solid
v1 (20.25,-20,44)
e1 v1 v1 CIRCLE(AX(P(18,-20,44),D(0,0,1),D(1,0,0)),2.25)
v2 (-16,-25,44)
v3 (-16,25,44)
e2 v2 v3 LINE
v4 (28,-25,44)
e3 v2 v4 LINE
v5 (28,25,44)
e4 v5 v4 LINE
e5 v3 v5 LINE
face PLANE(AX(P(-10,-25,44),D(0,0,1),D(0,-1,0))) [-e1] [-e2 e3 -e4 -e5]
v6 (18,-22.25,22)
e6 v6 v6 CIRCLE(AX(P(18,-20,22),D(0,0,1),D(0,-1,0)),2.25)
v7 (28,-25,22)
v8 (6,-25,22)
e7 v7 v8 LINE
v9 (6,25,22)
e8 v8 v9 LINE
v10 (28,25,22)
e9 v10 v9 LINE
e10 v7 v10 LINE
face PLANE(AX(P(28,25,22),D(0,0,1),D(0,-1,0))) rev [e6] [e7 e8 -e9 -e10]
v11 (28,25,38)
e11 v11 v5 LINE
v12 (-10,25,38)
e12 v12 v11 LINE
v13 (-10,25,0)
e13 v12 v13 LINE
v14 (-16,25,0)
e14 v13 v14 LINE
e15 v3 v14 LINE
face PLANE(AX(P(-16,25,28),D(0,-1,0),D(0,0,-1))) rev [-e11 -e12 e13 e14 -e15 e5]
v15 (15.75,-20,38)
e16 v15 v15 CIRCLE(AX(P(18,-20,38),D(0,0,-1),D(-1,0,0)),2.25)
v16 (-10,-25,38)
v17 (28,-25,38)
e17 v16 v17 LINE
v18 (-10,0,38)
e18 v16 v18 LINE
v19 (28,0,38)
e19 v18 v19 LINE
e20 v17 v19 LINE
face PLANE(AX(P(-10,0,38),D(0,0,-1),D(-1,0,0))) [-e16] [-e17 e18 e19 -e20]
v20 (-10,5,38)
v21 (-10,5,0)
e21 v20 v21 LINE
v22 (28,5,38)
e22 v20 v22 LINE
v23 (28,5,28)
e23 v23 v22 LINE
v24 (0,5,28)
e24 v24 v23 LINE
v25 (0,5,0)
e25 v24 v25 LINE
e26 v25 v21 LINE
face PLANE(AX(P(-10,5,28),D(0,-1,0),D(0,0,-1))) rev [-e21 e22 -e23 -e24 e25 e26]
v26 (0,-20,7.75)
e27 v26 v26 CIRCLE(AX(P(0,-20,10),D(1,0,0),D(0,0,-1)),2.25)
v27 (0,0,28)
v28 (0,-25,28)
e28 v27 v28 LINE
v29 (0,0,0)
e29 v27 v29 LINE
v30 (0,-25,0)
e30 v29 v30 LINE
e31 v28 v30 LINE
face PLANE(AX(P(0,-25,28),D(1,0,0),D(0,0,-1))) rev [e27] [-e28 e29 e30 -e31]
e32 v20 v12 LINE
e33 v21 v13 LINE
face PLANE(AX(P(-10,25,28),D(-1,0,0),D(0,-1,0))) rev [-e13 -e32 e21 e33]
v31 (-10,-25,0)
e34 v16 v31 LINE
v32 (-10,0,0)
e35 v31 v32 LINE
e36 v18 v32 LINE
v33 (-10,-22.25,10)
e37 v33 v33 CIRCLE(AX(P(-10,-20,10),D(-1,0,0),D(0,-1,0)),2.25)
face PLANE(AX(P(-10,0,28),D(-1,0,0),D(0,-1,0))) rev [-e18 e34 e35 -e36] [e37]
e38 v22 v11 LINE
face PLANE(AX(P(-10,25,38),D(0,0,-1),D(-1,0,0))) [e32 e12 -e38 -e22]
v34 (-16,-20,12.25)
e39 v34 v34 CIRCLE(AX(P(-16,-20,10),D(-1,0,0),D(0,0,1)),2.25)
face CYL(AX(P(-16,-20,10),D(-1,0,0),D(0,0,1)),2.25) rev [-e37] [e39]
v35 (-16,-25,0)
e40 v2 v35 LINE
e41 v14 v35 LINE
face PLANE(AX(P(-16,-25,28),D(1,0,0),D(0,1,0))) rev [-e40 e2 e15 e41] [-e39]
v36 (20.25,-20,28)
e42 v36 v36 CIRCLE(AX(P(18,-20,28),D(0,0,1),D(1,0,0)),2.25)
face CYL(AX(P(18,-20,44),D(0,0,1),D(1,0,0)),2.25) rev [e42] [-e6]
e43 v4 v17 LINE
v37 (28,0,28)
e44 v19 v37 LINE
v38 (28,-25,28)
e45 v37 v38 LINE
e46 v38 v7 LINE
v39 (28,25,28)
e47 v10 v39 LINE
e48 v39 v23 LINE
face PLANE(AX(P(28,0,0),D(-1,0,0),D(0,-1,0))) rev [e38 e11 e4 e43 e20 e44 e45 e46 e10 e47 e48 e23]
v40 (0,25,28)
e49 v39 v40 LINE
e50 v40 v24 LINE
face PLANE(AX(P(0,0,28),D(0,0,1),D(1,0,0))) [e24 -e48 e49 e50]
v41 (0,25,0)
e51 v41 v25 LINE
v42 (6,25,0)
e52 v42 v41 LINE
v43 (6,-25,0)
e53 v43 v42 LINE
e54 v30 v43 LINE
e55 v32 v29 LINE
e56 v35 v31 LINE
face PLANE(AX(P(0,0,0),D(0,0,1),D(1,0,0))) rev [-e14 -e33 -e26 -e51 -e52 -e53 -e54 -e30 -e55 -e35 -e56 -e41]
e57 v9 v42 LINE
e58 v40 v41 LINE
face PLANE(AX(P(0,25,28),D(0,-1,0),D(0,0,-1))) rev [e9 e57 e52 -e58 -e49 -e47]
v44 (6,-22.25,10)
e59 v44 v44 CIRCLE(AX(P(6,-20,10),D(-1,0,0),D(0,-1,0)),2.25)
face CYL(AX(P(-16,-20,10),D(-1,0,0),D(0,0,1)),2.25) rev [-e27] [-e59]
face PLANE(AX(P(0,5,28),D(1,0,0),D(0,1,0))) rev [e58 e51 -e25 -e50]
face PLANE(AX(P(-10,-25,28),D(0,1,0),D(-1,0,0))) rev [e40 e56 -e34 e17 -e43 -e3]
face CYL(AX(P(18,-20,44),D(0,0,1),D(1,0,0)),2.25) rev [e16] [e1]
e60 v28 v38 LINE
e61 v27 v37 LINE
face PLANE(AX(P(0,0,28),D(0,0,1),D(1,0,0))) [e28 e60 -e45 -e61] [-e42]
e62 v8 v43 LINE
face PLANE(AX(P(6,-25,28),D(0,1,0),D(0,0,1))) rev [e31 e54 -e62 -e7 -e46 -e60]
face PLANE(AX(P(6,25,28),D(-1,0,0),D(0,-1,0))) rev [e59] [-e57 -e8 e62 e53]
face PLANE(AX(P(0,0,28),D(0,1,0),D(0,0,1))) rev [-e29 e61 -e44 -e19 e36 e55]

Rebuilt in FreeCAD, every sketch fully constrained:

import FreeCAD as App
import Part
import Sketcher

V = App.Vector
Q = App.Units.Quantity

doc = App.newDocument("Part")
params = doc.addObject("Spreadsheet::Sheet", "Params")
for row, (alias, value) in enumerate([
    ("sketch1_width", "10 mm"),
    ("sketch1_width2", "6 mm"),
    ("sketch1_height", "25 mm"),
    ("sketch1_height2", "20 mm"),
    ("pad1_length", "28 mm"),
    ("sketch2_width", "5 mm"),
    ("sketch2_width2", "20 mm"),
    ("sketch2_height", "10 mm"),
    ("sketch2_height2", "6 mm"),
    ("pad2_length", "16 mm"),
    ("sketch3_width", "50 mm"),
    ("sketch3_height", "16 mm"),
    ("pad3_length", "6 mm"),
    ("sketch4_width", "25 mm"),
    ("sketch4_width2", "20 mm"),
    ("sketch4_height", "6 mm"),
    ("sketch4_height2", "10 mm"),
    ("pad4_length", "22 mm"),
    ("sketch5_diameter", "4.5 mm"),
    ("hole_diameter", "4.5 mm"),
    ("hole_depth", "30 mm"),
    ("sketch6_diameter", "4.5 mm"),
    ("hole2_diameter", "4.5 mm"),
    ("hole2_depth", "30 mm"),
], start=1):
    params.set(f"A{row}", alias)
    params.set(f"B{row}", "=" + value)
    params.setAlias(f"B{row}", alias)

body = doc.addObject("PartDesign::Body", "Body")

# Sketch on XY plane
sketch1 = body.newObject("Sketcher::SketchObject", "Sketch")
sketch1.AttachmentSupport = (doc.getObject("XY_Plane"), [""])
sketch1.MapMode = "FlatFace"
sketch1.addGeometry(Part.LineSegment(V(-10, 0, 0), V(0, 0, 0)), False)
sketch1.addGeometry(Part.LineSegment(V(0, 0, 0), V(0, -25, 0)), False)
sketch1.addGeometry(Part.LineSegment(V(0, -25, 0), V(6, -25, 0)), False)
sketch1.addGeometry(Part.LineSegment(V(6, -25, 0), V(6, 25, 0)), False)
sketch1.addGeometry(Part.LineSegment(V(6, 25, 0), V(0, 25, 0)), False)
sketch1.addGeometry(Part.LineSegment(V(0, 25, 0), V(0, 5, 0)), False)
sketch1.addGeometry(Part.LineSegment(V(0, 5, 0), V(-10, 5, 0)), False)
sketch1.addGeometry(Part.LineSegment(V(-10, 5, 0), V(-10, 25, 0)), False)
sketch1.addGeometry(Part.LineSegment(V(-10, 25, 0), V(-16, 25, 0)), False)
sketch1.addGeometry(Part.LineSegment(V(-16, 25, 0), V(-16, -25, 0)), False)
sketch1.addGeometry(Part.LineSegment(V(-16, -25, 0), V(-10, -25, 0)), False)
sketch1.addGeometry(Part.LineSegment(V(-10, -25, 0), V(-10, 0, 0)), False)
sketch1.addConstraint(Sketcher.Constraint("Coincident", 0, 2, 1, 1))
sketch1.addConstraint(Sketcher.Constraint("Coincident", 1, 2, 2, 1))
sketch1.addConstraint(Sketcher.Constraint("Coincident", 2, 2, 3, 1))
sketch1.addConstraint(Sketcher.Constraint("Coincident", 3, 2, 4, 1))
sketch1.addConstraint(Sketcher.Constraint("Coincident", 4, 2, 5, 1))
sketch1.addConstraint(Sketcher.Constraint("Coincident", 5, 2, 6, 1))
sketch1.addConstraint(Sketcher.Constraint("Coincident", 6, 2, 7, 1))
sketch1.addConstraint(Sketcher.Constraint("Coincident", 7, 2, 8, 1))
sketch1.addConstraint(Sketcher.Constraint("Coincident", 8, 2, 9, 1))
sketch1.addConstraint(Sketcher.Constraint("Coincident", 9, 2, 10, 1))
sketch1.addConstraint(Sketcher.Constraint("Coincident", 10, 2, 11, 1))
sketch1.addConstraint(Sketcher.Constraint("Coincident", 11, 2, 0, 1))
sketch1.addConstraint(Sketcher.Constraint("Horizontal", 0))
sketch1.addConstraint(Sketcher.Constraint("Vertical", 1))
sketch1.addConstraint(Sketcher.Constraint("Horizontal", 2))
sketch1.addConstraint(Sketcher.Constraint("Vertical", 3))
sketch1.addConstraint(Sketcher.Constraint("Horizontal", 4))
sketch1.addConstraint(Sketcher.Constraint("Vertical", 5))
sketch1.addConstraint(Sketcher.Constraint("Horizontal", 6))
sketch1.addConstraint(Sketcher.Constraint("Vertical", 7))
sketch1.addConstraint(Sketcher.Constraint("Horizontal", 8))
sketch1.addConstraint(Sketcher.Constraint("Vertical", 9))
sketch1.addConstraint(Sketcher.Constraint("Horizontal", 10))
sketch1.addConstraint(Sketcher.Constraint("Vertical", 11))
sketch1.addConstraint(Sketcher.Constraint("Coincident", 0, 2, -1, 1))
sketch1.addConstraint(Sketcher.Constraint("Symmetric", 1, 2, 4, 2, -1, 1))
sketch1.addConstraint(Sketcher.Constraint("Symmetric", 7, 2, 10, 2, -1))
sketch1.addConstraint(Sketcher.Constraint("Horizontal", 4, 2, 7, 2))
sketch1.addConstraint(Sketcher.Constraint("Equal", 4, 8))
sketch1.addConstraint(Sketcher.Constraint("DistanceX", 0, 1, 0, 2, Q("10 mm")))
sketch1.addConstraint(Sketcher.Constraint("DistanceX", 2, 1, 2, 2, Q("6 mm")))
sketch1.addConstraint(Sketcher.Constraint("DistanceY", 1, 2, 1, 1, Q("25 mm")))
sketch1.addConstraint(Sketcher.Constraint("DistanceY", 5, 2, 5, 1, Q("20 mm")))
sketch1.setExpression("Constraints[29]", "Params.sketch1_width")
sketch1.setExpression("Constraints[30]", "Params.sketch1_width2")
sketch1.setExpression("Constraints[31]", "Params.sketch1_height")
sketch1.setExpression("Constraints[32]", "Params.sketch1_height2")
pad1 = body.newObject("PartDesign::Pad", "Pad")
pad1.Profile = sketch1
pad1.setExpression("Length", "Params.pad1_length")

# Sketch on YZ plane
sketch2 = body.newObject("Sketcher::SketchObject", "Sketch001")
sketch2.AttachmentSupport = (doc.getObject("YZ_Plane"), [""])
sketch2.MapMode = "FlatFace"
sketch2.AttachmentOffset = App.Placement(V(0, 0, 6), App.Rotation())
sketch2.addGeometry(Part.LineSegment(V(0, 38, 0), V(0, 28, 0)), False)
sketch2.addGeometry(Part.LineSegment(V(0, 28, 0), V(5, 28, 0)), False)
sketch2.addGeometry(Part.LineSegment(V(5, 28, 0), V(5, 38, 0)), False)
sketch2.addGeometry(Part.LineSegment(V(5, 38, 0), V(25, 38, 0)), False)
sketch2.addGeometry(Part.LineSegment(V(25, 38, 0), V(25, 44, 0)), False)
sketch2.addGeometry(Part.LineSegment(V(25, 44, 0), V(-25, 44, 0)), False)
sketch2.addGeometry(Part.LineSegment(V(-25, 44, 0), V(-25, 38, 0)), False)
sketch2.addGeometry(Part.LineSegment(V(-25, 38, 0), V(0, 38, 0)), False)
sketch2.addConstraint(Sketcher.Constraint("Coincident", 0, 2, 1, 1))
sketch2.addConstraint(Sketcher.Constraint("Coincident", 1, 2, 2, 1))
sketch2.addConstraint(Sketcher.Constraint("Coincident", 2, 2, 3, 1))
sketch2.addConstraint(Sketcher.Constraint("Coincident", 3, 2, 4, 1))
sketch2.addConstraint(Sketcher.Constraint("Coincident", 4, 2, 5, 1))
sketch2.addConstraint(Sketcher.Constraint("Coincident", 5, 2, 6, 1))
sketch2.addConstraint(Sketcher.Constraint("Coincident", 6, 2, 7, 1))
sketch2.addConstraint(Sketcher.Constraint("Coincident", 7, 2, 0, 1))
sketch2.addConstraint(Sketcher.Constraint("Vertical", 0))
sketch2.addConstraint(Sketcher.Constraint("Horizontal", 1))
sketch2.addConstraint(Sketcher.Constraint("Vertical", 2))
sketch2.addConstraint(Sketcher.Constraint("Horizontal", 3))
sketch2.addConstraint(Sketcher.Constraint("Vertical", 4))
sketch2.addConstraint(Sketcher.Constraint("Horizontal", 5))
sketch2.addConstraint(Sketcher.Constraint("Vertical", 6))
sketch2.addConstraint(Sketcher.Constraint("Horizontal", 7))
sketch2.addConstraint(Sketcher.Constraint("Symmetric", 3, 2, 6, 2, -2))
sketch2.addConstraint(Sketcher.Constraint("PointOnObject", 0, 2, -2))
sketch2.addConstraint(Sketcher.Constraint("DistanceX", 1, 1, 1, 2, Q("5 mm")))
sketch2.addConstraint(Sketcher.Constraint("DistanceX", 3, 1, 3, 2, Q("20 mm")))
sketch2.addConstraint(Sketcher.Constraint("DistanceY", 0, 2, 0, 1, Q("10 mm")))
sketch2.addConstraint(Sketcher.Constraint("DistanceY", 4, 1, 4, 2, Q("6 mm")))
sketch2.addConstraint(Sketcher.Constraint("DistanceY", -1, 1, 0, 2, Q("28 mm")))
sketch2.setExpression("Constraints[18]", "Params.sketch2_width")
sketch2.setExpression("Constraints[19]", "Params.sketch2_width2")
sketch2.setExpression("Constraints[20]", "Params.sketch2_height")
sketch2.setExpression("Constraints[21]", "Params.sketch2_height2")
pad2 = body.newObject("PartDesign::Pad", "Pad001")
pad2.Profile = sketch2
pad2.setExpression("Length", "Params.pad2_length")
pad2.Reversed = True

# Sketch on YZ plane
sketch3 = body.newObject("Sketcher::SketchObject", "Sketch002")
sketch3.AttachmentSupport = (doc.getObject("YZ_Plane"), [""])
sketch3.MapMode = "FlatFace"
sketch3.AttachmentOffset = App.Placement(V(0, 0, -10), App.Rotation())
sketch3.addGeometry(Part.LineSegment(V(25, 28, 0), V(-25, 28, 0)), False)
sketch3.addGeometry(Part.LineSegment(V(-25, 28, 0), V(-25, 44, 0)), False)
sketch3.addGeometry(Part.LineSegment(V(-25, 44, 0), V(25, 44, 0)), False)
sketch3.addGeometry(Part.LineSegment(V(25, 44, 0), V(25, 28, 0)), False)
sketch3.addConstraint(Sketcher.Constraint("Coincident", 0, 2, 1, 1))
sketch3.addConstraint(Sketcher.Constraint("Coincident", 1, 2, 2, 1))
sketch3.addConstraint(Sketcher.Constraint("Coincident", 2, 2, 3, 1))
sketch3.addConstraint(Sketcher.Constraint("Coincident", 3, 2, 0, 1))
sketch3.addConstraint(Sketcher.Constraint("Horizontal", 0))
sketch3.addConstraint(Sketcher.Constraint("Vertical", 1))
sketch3.addConstraint(Sketcher.Constraint("Horizontal", 2))
sketch3.addConstraint(Sketcher.Constraint("Vertical", 3))
sketch3.addConstraint(Sketcher.Constraint("DistanceX", 0, 2, 0, 1, Q("50 mm")))
sketch3.addConstraint(Sketcher.Constraint("DistanceY", 1, 1, 1, 2, Q("16 mm")))
sketch3.addConstraint(Sketcher.Constraint("DistanceX", 0, 2, -1, 1, Q("25 mm")))
sketch3.addConstraint(Sketcher.Constraint("DistanceY", -1, 1, 0, 2, Q("28 mm")))
sketch3.setExpression("Constraints[8]", "Params.sketch3_width")
sketch3.setExpression("Constraints[9]", "Params.sketch3_height")
pad3 = body.newObject("PartDesign::Pad", "Pad002")
pad3.Profile = sketch3
pad3.setExpression("Length", "Params.pad3_length")
pad3.Reversed = True

# Sketch on YZ plane
sketch4 = body.newObject("Sketcher::SketchObject", "Sketch003")
sketch4.AttachmentSupport = (doc.getObject("YZ_Plane"), [""])
sketch4.MapMode = "FlatFace"
sketch4.AttachmentOffset = App.Placement(V(0, 0, 6), App.Rotation())
sketch4.addGeometry(Part.LineSegment(V(-25, 44, 0), V(-25, 38, 0)), False)
sketch4.addGeometry(Part.LineSegment(V(-25, 38, 0), V(0, 38, 0)), False)
sketch4.addGeometry(Part.LineSegment(V(0, 38, 0), V(0, 28, 0)), False)
sketch4.addGeometry(Part.LineSegment(V(0, 28, 0), V(-25, 28, 0)), False)
sketch4.addGeometry(Part.LineSegment(V(-25, 28, 0), V(-25, 22, 0)), False)
sketch4.addGeometry(Part.LineSegment(V(-25, 22, 0), V(25, 22, 0)), False)
sketch4.addGeometry(Part.LineSegment(V(25, 22, 0), V(25, 28, 0)), False)
sketch4.addGeometry(Part.LineSegment(V(25, 28, 0), V(5, 28, 0)), False)
sketch4.addGeometry(Part.LineSegment(V(5, 28, 0), V(5, 38, 0)), False)
sketch4.addGeometry(Part.LineSegment(V(5, 38, 0), V(25, 38, 0)), False)
sketch4.addGeometry(Part.LineSegment(V(25, 38, 0), V(25, 44, 0)), False)
sketch4.addGeometry(Part.LineSegment(V(25, 44, 0), V(-25, 44, 0)), False)
sketch4.addConstraint(Sketcher.Constraint("Coincident", 0, 2, 1, 1))
sketch4.addConstraint(Sketcher.Constraint("Coincident", 1, 2, 2, 1))
sketch4.addConstraint(Sketcher.Constraint("Coincident", 2, 2, 3, 1))
sketch4.addConstraint(Sketcher.Constraint("Coincident", 3, 2, 4, 1))
sketch4.addConstraint(Sketcher.Constraint("Coincident", 4, 2, 5, 1))
sketch4.addConstraint(Sketcher.Constraint("Coincident", 5, 2, 6, 1))
sketch4.addConstraint(Sketcher.Constraint("Coincident", 6, 2, 7, 1))
sketch4.addConstraint(Sketcher.Constraint("Coincident", 7, 2, 8, 1))
sketch4.addConstraint(Sketcher.Constraint("Coincident", 8, 2, 9, 1))
sketch4.addConstraint(Sketcher.Constraint("Coincident", 9, 2, 10, 1))
sketch4.addConstraint(Sketcher.Constraint("Coincident", 10, 2, 11, 1))
sketch4.addConstraint(Sketcher.Constraint("Coincident", 11, 2, 0, 1))
sketch4.addConstraint(Sketcher.Constraint("Vertical", 0))
sketch4.addConstraint(Sketcher.Constraint("Horizontal", 1))
sketch4.addConstraint(Sketcher.Constraint("Vertical", 2))
sketch4.addConstraint(Sketcher.Constraint("Horizontal", 3))
sketch4.addConstraint(Sketcher.Constraint("Vertical", 4))
sketch4.addConstraint(Sketcher.Constraint("Horizontal", 5))
sketch4.addConstraint(Sketcher.Constraint("Vertical", 6))
sketch4.addConstraint(Sketcher.Constraint("Horizontal", 7))
sketch4.addConstraint(Sketcher.Constraint("Vertical", 8))
sketch4.addConstraint(Sketcher.Constraint("Horizontal", 9))
sketch4.addConstraint(Sketcher.Constraint("Vertical", 10))
sketch4.addConstraint(Sketcher.Constraint("Horizontal", 11))
sketch4.addConstraint(Sketcher.Constraint("Symmetric", 3, 2, 6, 2, -2))
sketch4.addConstraint(Sketcher.Constraint("Symmetric", 0, 2, 9, 2, -2))
sketch4.addConstraint(Sketcher.Constraint("PointOnObject", 1, 2, -2))
sketch4.addConstraint(Sketcher.Constraint("Vertical", 0, 2, 3, 2))
sketch4.addConstraint(Sketcher.Constraint("Equal", 0, 4))
sketch4.addConstraint(Sketcher.Constraint("DistanceX", 1, 1, 1, 2, Q("25 mm")))
sketch4.addConstraint(Sketcher.Constraint("DistanceX", 7, 2, 7, 1, Q("20 mm")))
sketch4.addConstraint(Sketcher.Constraint("DistanceY", 0, 2, 0, 1, Q("6 mm")))
sketch4.addConstraint(Sketcher.Constraint("DistanceY", 2, 2, 2, 1, Q("10 mm")))
sketch4.addConstraint(Sketcher.Constraint("DistanceY", -1, 1, 0, 2, Q("38 mm")))
sketch4.setExpression("Constraints[29]", "Params.sketch4_width")
sketch4.setExpression("Constraints[30]", "Params.sketch4_width2")
sketch4.setExpression("Constraints[31]", "Params.sketch4_height")
sketch4.setExpression("Constraints[32]", "Params.sketch4_height2")
pad4 = body.newObject("PartDesign::Pad", "Pad003")
pad4.Profile = sketch4
pad4.setExpression("Length", "Params.pad4_length")

# Sketch on XY plane
sketch5 = body.newObject("Sketcher::SketchObject", "Sketch004")
sketch5.AttachmentSupport = (doc.getObject("XY_Plane"), [""])
sketch5.MapMode = "FlatFace"
sketch5.AttachmentOffset = App.Placement(V(0, 0, 44), App.Rotation())
sketch5.addGeometry(Part.Circle(V(18, -20, 0), V(0, 0, 1), 2.2), False)
sketch5.addConstraint(Sketcher.Constraint("Diameter", 0, Q("4.5 mm")))
sketch5.addConstraint(Sketcher.Constraint("DistanceX", -1, 1, 0, 3, Q("18 mm")))
sketch5.addConstraint(Sketcher.Constraint("DistanceY", 0, 3, -1, 1, Q("20 mm")))
sketch5.setExpression("Constraints[0]", "Params.sketch5_diameter")
doc.recompute()
hole = body.newObject("PartDesign::Hole", "Hole")
hole.Profile = sketch5
hole.ThreadType = "None"
hole.setExpression("Diameter", "Params.hole_diameter")
hole.DepthType = "Dimension"
hole.setExpression("Depth", "Params.hole_depth")
hole.DrillPoint = "Angled"
hole.DrillPointAngle = 118

# Sketch on YZ plane
sketch6 = body.newObject("Sketcher::SketchObject", "Sketch005")
sketch6.AttachmentSupport = (doc.getObject("YZ_Plane"), [""])
sketch6.MapMode = "FlatFace"
sketch6.AttachmentOffset = App.Placement(V(0, 0, -16), App.Rotation())
sketch6.addGeometry(Part.Circle(V(-20, 10, 0), V(0, 0, 1), 2.2), False)
sketch6.addConstraint(Sketcher.Constraint("Diameter", 0, Q("4.5 mm")))
sketch6.addConstraint(Sketcher.Constraint("DistanceX", 0, 3, -1, 1, Q("20 mm")))
sketch6.addConstraint(Sketcher.Constraint("DistanceY", -1, 1, 0, 3, Q("10 mm")))
sketch6.setExpression("Constraints[0]", "Params.sketch6_diameter")
doc.recompute()
hole2 = body.newObject("PartDesign::Hole", "Hole001")
hole2.Profile = sketch6
hole2.ThreadType = "None"
hole2.setExpression("Diameter", "Params.hole2_diameter")
hole2.DepthType = "Dimension"
hole2.setExpression("Depth", "Params.hole2_depth")
hole2.DrillPoint = "Angled"
hole2.DrillPointAngle = 118
hole2.Reversed = True

doc.recompute()
